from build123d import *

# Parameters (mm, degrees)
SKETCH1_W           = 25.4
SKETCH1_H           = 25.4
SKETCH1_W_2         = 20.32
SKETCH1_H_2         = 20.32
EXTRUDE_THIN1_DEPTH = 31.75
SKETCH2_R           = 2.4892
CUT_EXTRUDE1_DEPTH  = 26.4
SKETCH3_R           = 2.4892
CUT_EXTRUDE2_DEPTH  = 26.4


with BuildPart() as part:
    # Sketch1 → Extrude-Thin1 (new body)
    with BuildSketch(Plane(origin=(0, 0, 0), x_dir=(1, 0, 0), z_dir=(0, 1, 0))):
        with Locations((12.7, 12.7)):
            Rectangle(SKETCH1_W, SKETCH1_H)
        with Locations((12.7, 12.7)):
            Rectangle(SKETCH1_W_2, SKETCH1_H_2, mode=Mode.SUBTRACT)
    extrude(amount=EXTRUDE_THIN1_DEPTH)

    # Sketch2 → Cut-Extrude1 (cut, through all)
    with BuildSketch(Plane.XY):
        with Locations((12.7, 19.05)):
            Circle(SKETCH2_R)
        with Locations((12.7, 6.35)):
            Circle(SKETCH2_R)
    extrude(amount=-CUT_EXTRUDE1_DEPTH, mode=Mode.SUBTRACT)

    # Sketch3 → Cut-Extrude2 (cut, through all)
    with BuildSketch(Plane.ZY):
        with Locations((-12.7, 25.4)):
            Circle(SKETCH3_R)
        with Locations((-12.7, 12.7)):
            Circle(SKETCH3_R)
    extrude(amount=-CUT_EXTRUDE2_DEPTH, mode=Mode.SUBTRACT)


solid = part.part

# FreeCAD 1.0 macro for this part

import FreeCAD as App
import Part
import Sketcher
from FreeCAD import Vector
Q = App.Units.Quantity


def add_polygon(sketch, points):
    """Adds a closed chain of lines whose ends are joined by coincident constraints."""
    first, n = sketch.GeometryCount, len(points)
    for a, b in zip(points, points[1:] + points[:1]):
        sketch.addGeometry(Part.LineSegment(App.Vector(*a, 0), App.Vector(*b, 0)), False)
    for i in range(n):
        sketch.addConstraint(Sketcher.Constraint("Coincident", first + i, 2, first + (i + 1) % n, 1))

doc = App.newDocument("Part")
params = doc.addObject("Spreadsheet::Sheet", "Params")
for row, (alias, value) in enumerate([
    ("sketch1_width", "1 in"),
    ("sketch1_width2", "0.8 in"),
    ("pad1_length", "1.25 in"),
    ("sketch2_diameter", "0.196 in"),
    ("sketch3_diameter", "0.196 in"),
], start=1):
    params.set(f"A{row}", alias)
    params.set(f"B{row}", "=" + value)
    params.setAlias(f"B{row}", alias)

body = doc.addObject("PartDesign::Body", "Body")

# Sketch on XZ plane
sketch1 = doc.addObject("Sketcher::SketchObject", "Sketch")
body.addObject(sketch1)
sketch1.AttachmentSupport = (doc.XZ_Plane, [""])
sketch1.MapMode = "FlatFace"
add_polygon(sketch1, [(0, -25.4), (0, 0), (25.4, 0), (25.4, -25.4)])  # lines 0-3
add_polygon(sketch1, [(22.86, -2.54), (2.54, -2.54), (2.54, -22.86), (22.86, -22.86)])  # lines 4-7
sketch1.addConstraint([
    Sketcher.Constraint("Vertical", 0),
    Sketcher.Constraint("Horizontal", 1),
    Sketcher.Constraint("Vertical", 2),
    Sketcher.Constraint("Horizontal", 3),
    Sketcher.Constraint("Horizontal", 4),
    Sketcher.Constraint("Vertical", 5),
    Sketcher.Constraint("Horizontal", 6),
    Sketcher.Constraint("Vertical", 7),
    Sketcher.Constraint("Coincident", 0, 2, -1, 1),
    Sketcher.Constraint("Equal", 3, 0),
    Sketcher.Constraint("Equal", 6, 5),
    Sketcher.Constraint("DistanceX", 1, 1, 1, 2, Q("1 in")),
    Sketcher.Constraint("DistanceX", 4, 2, 4, 1, Q("0.8 in")),
    Sketcher.Constraint("DistanceX", -1, 1, 4, 2, Q("0.1 in")),
    Sketcher.Constraint("DistanceY", 4, 2, -1, 1, Q("0.1 in")),
])
sketch1.setExpression("Constraints[19]", "Params.sketch1_width")
sketch1.setExpression("Constraints[20]", "Params.sketch1_width2")
pad1 = doc.addObject("PartDesign::Pad", "Pad")
body.addObject(pad1)
pad1.Profile = sketch1
pad1.setExpression("Length", "Params.pad1_length")
pad1.Reversed = True

# Sketch on XY plane
sketch2 = doc.addObject("Sketcher::SketchObject", "Sketch001")
body.addObject(sketch2)
sketch2.AttachmentSupport = (doc.XY_Plane, [""])
sketch2.MapMode = "FlatFace"
sketch2.addGeometry([
    Part.Circle(Vector(12.7, 19.05, 0), Vector(0, 0, 1), 2.4892),
    Part.Circle(Vector(12.7, 6.35, 0), Vector(0, 0, 1), 2.4892),
], False)
sketch2.addConstraint([
    Sketcher.Constraint("Equal", 0, 1),
    Sketcher.Constraint("Vertical", 0, 3, 1, 3),
    Sketcher.Constraint("Diameter", 0, Q("0.196 in")),
    Sketcher.Constraint("DistanceX", -1, 1, 0, 3, Q("0.5 in")),
    Sketcher.Constraint("DistanceY", 1, 3, 0, 3, Q("0.5 in")),
    Sketcher.Constraint("DistanceY", -1, 1, 0, 3, Q("0.75 in")),
])
sketch2.setExpression("Constraints[2]", "Params.sketch2_diameter")
pocket1 = doc.addObject("PartDesign::Pocket", "Pocket")
body.addObject(pocket1)
pocket1.Profile = sketch2
pocket1.Type = "ThroughAll"

# Sketch on YZ plane
sketch3 = doc.addObject("Sketcher::SketchObject", "Sketch002")
body.addObject(sketch3)
sketch3.AttachmentSupport = (doc.YZ_Plane, [""])
sketch3.MapMode = "FlatFace"
sketch3.addGeometry([
    Part.Circle(Vector(25.4, -12.7, 0), Vector(0, 0, 1), 2.4892),
    Part.Circle(Vector(12.7, -12.7, 0), Vector(0, 0, 1), 2.4892),
], False)
sketch3.addConstraint([
    Sketcher.Constraint("Equal", 0, 1),
    Sketcher.Constraint("Horizontal", 0, 3, 1, 3),
    Sketcher.Constraint("Diameter", 0, Q("0.196 in")),
    Sketcher.Constraint("DistanceX", -1, 1, 0, 3, Q("1 in")),
    Sketcher.Constraint("DistanceY", 0, 3, -1, 1, Q("0.5 in")),
    Sketcher.Constraint("DistanceX", -1, 1, 1, 3, Q("0.5 in")),
])
sketch3.setExpression("Constraints[2]", "Params.sketch3_diameter")
pocket2 = doc.addObject("PartDesign::Pocket", "Pocket001")
body.addObject(pocket2)
pocket2.Profile = sketch3
pocket2.Type = "ThroughAll"
pocket2.Reversed = True

doc.recompute()
